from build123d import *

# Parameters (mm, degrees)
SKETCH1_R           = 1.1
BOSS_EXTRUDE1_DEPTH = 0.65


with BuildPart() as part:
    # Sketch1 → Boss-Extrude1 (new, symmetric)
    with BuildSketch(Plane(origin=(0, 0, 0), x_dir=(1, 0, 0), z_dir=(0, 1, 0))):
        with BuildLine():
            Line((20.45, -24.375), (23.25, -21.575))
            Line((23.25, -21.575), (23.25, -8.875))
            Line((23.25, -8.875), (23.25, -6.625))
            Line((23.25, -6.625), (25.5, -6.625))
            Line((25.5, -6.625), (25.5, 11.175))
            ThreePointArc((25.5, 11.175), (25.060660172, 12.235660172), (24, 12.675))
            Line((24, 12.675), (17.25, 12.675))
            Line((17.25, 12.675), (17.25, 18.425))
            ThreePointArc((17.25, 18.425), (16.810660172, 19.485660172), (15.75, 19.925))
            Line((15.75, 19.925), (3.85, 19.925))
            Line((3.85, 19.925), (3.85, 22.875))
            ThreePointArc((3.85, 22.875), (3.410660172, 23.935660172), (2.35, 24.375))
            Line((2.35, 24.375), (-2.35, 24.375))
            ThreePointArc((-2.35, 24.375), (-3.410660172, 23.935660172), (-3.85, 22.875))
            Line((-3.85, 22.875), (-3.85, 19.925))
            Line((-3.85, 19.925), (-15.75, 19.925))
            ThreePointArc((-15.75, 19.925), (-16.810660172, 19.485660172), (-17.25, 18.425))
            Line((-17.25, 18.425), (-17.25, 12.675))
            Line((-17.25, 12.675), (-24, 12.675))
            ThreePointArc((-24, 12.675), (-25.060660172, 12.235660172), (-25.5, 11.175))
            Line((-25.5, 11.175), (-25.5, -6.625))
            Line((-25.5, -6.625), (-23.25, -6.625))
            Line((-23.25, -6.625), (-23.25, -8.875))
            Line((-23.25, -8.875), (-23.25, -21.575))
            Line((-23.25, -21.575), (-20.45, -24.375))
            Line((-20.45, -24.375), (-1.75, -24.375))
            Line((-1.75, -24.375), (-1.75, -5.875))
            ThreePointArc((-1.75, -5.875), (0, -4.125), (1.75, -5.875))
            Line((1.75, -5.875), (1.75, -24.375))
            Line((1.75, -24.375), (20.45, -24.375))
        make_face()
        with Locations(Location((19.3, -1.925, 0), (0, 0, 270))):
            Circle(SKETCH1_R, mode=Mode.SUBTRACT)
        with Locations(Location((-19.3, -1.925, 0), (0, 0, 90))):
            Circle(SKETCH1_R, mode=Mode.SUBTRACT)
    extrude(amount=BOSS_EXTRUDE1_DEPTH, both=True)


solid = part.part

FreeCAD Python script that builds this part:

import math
import FreeCAD as App
import Part
import Sketcher

V = App.Vector

doc = App.newDocument("Part")
params = doc.addObject("Spreadsheet::Sheet", "Params")
for row, (alias, value) in enumerate([
    ("sketch1_diameter", "2.2 mm"),
    ("sketch1_radius", "1.5 mm"),
    ("sketch1_radius2", "1.75 mm"),
    ("sketch1_width", "11.9 mm"),
    ("sketch1_width2", "4.7 mm"),
    ("pad1_length", "1.3 mm"),
], start=1):
    params.set(f"A{row}", alias)
    params.set(f"B{row}", "=" + value)
    params.setAlias(f"B{row}", alias)

body = doc.addObject("PartDesign::Body", "Body")

# Sketch on XZ plane
sketch1 = body.newObject("Sketcher::SketchObject", "Sketch")
sketch1.AttachmentSupport = (doc.getObject("XZ_Plane"), [""])
sketch1.MapMode = "FlatFace"
sketch1.addGeometry(Part.LineSegment(V(20.4, 24.4, 0), V(23.2, 21.6, 0)), False)
sketch1.addGeometry(Part.LineSegment(V(23.2, 21.6, 0), V(23.2, 6.6, 0)), False)
sketch1.addGeometry(Part.LineSegment(V(23.2, 6.6, 0), V(25.5, 6.6, 0)), False)
sketch1.addGeometry(Part.LineSegment(V(25.5, 6.6, 0), V(25.5, -11.2, 0)), False)
sketch1.addGeometry(Part.ArcOfCircle(Part.Circle(V(24, -11.2, 0), V(0, 0, 1), 1.5), math.radians(-90), math.radians(0)), False)
sketch1.addGeometry(Part.LineSegment(V(24, -12.7, 0), V(17.2, -12.7, 0)), False)
sketch1.addGeometry(Part.LineSegment(V(17.2, -12.7, 0), V(17.2, -18.4, 0)), False)
sketch1.addGeometry(Part.ArcOfCircle(Part.Circle(V(15.8, -18.4, 0), V(0, 0, 1), 1.5), math.radians(-90), math.radians(0)), False)
sketch1.addGeometry(Part.LineSegment(V(15.8, -19.9, 0), V(3.9, -19.9, 0)), False)
sketch1.addGeometry(Part.LineSegment(V(3.9, -19.9, 0), V(3.9, -22.9, 0)), False)
sketch1.addGeometry(Part.ArcOfCircle(Part.Circle(V(2.4, -22.9, 0), V(0, 0, 1), 1.5), math.radians(-90), math.radians(0)), False)
sketch1.addGeometry(Part.LineSegment(V(2.4, -24.4, 0), V(-2.4, -24.4, 0)), False)
sketch1.addGeometry(Part.ArcOfCircle(Part.Circle(V(-2.4, -22.9, 0), V(0, 0, 1), 1.5), math.radians(180), math.radians(270)), False)
sketch1.addGeometry(Part.LineSegment(V(-3.9, -22.9, 0), V(-3.9, -19.9, 0)), False)
sketch1.addGeometry(Part.LineSegment(V(-3.9, -19.9, 0), V(-15.8, -19.9, 0)), False)
sketch1.addGeometry(Part.ArcOfCircle(Part.Circle(V(-15.8, -18.4, 0), V(0, 0, 1), 1.5), math.radians(180), math.radians(270)), False)
sketch1.addGeometry(Part.LineSegment(V(-17.2, -18.4, 0), V(-17.2, -12.7, 0)), False)
sketch1.addGeometry(Part.LineSegment(V(-17.2, -12.7, 0), V(-24, -12.7, 0)), False)
sketch1.addGeometry(Part.ArcOfCircle(Part.Circle(V(-24, -11.2, 0), V(0, 0, 1), 1.5), math.radians(180), math.radians(270)), False)
sketch1.addGeometry(Part.LineSegment(V(-25.5, -11.2, 0), V(-25.5, 6.6, 0)), False)
sketch1.addGeometry(Part.LineSegment(V(-25.5, 6.6, 0), V(-23.2, 6.6, 0)), False)
sketch1.addGeometry(Part.LineSegment(V(-23.2, 6.6, 0), V(-23.2, 21.6, 0)), False)
sketch1.addGeometry(Part.LineSegment(V(-23.2, 21.6, 0), V(-20.4, 24.4, 0)), False)
sketch1.addGeometry(Part.LineSegment(V(-20.4, 24.4, 0), V(-1.8, 24.4, 0)), False)
sketch1.addGeometry(Part.LineSegment(V(-1.8, 24.4, 0), V(-1.8, 5.9, 0)), False)
sketch1.addGeometry(Part.ArcOfCircle(Part.Circle(V(0, 5.9, 0), V(0, 0, 1), 1.8), math.radians(180), math.radians(360)), False)
sketch1.addGeometry(Part.LineSegment(V(1.8, 5.9, 0), V(1.8, 24.4, 0)), False)
sketch1.addGeometry(Part.LineSegment(V(1.8, 24.4, 0), V(20.4, 24.4, 0)), False)
sketch1.addGeometry(Part.Circle(V(-19.3, 1.9, 0), V(0, 0, 1), 1.1), False)
sketch1.addGeometry(Part.Circle(V(19.3, 1.9, 0), V(0, 0, 1), 1.1), False)
sketch1.addConstraint(Sketcher.Constraint("Coincident", 0, 2, 1, 1))
sketch1.addConstraint(Sketcher.Constraint("Coincident", 1, 2, 2, 1))
sketch1.addConstraint(Sketcher.Constraint("Coincident", 2, 2, 3, 1))
sketch1.addConstraint(Sketcher.Constraint("Tangent", 3, 2, 4, 2))
sketch1.addConstraint(Sketcher.Constraint("Tangent", 4, 1, 5, 1))
sketch1.addConstraint(Sketcher.Constraint("Coincident", 5, 2, 6, 1))
sketch1.addConstraint(Sketcher.Constraint("Tangent", 6, 2, 7, 2))
sketch1.addConstraint(Sketcher.Constraint("Tangent", 7, 1, 8, 1))
sketch1.addConstraint(Sketcher.Constraint("Coincident", 8, 2, 9, 1))
sketch1.addConstraint(Sketcher.Constraint("Tangent", 9, 2, 10, 2))
sketch1.addConstraint(Sketcher.Constraint("Tangent", 10, 1, 11, 1))
sketch1.addConstraint(Sketcher.Constraint("Tangent", 11, 2, 12, 2))
sketch1.addConstraint(Sketcher.Constraint("Tangent", 12, 1, 13, 1))
sketch1.addConstraint(Sketcher.Constraint("Coincident", 13, 2, 14, 1))
sketch1.addConstraint(Sketcher.Constraint("Tangent", 14, 2, 15, 2))
sketch1.addConstraint(Sketcher.Constraint("Tangent", 15, 1, 16, 1))
sketch1.addConstraint(Sketcher.Constraint("Coincident", 16, 2, 17, 1))
sketch1.addConstraint(Sketcher.Constraint("Tangent", 17, 2, 18, 2))
sketch1.addConstraint(Sketcher.Constraint("Tangent", 18, 1, 19, 1))
sketch1.addConstraint(Sketcher.Constraint("Coincident", 19, 2, 20, 1))
sketch1.addConstraint(Sketcher.Constraint("Coincident", 20, 2, 21, 1))
sketch1.addConstraint(Sketcher.Constraint("Coincident", 21, 2, 22, 1))
sketch1.addConstraint(Sketcher.Constraint("Coincident", 22, 2, 23, 1))
sketch1.addConstraint(Sketcher.Constraint("Coincident", 23, 2, 24, 1))
sketch1.addConstraint(Sketcher.Constraint("Tangent", 24, 2, 25, 1))
sketch1.addConstraint(Sketcher.Constraint("Tangent", 25, 2, 26, 1))
sketch1.addConstraint(Sketcher.Constraint("Coincident", 26, 2, 27, 1))
sketch1.addConstraint(Sketcher.Constraint("Coincident", 27, 2, 0, 1))
sketch1.addConstraint(Sketcher.Constraint("Vertical", 1))
sketch1.addConstraint(Sketcher.Constraint("Horizontal", 2))
sketch1.addConstraint(Sketcher.Constraint("Vertical", 3))
sketch1.addConstraint(Sketcher.Constraint("Horizontal", 5))
sketch1.addConstraint(Sketcher.Constraint("Vertical", 6))
sketch1.addConstraint(Sketcher.Constraint("Horizontal", 8))
sketch1.addConstraint(Sketcher.Constraint("Vertical", 9))
sketch1.addConstraint(Sketcher.Constraint("Horizontal", 11))
sketch1.addConstraint(Sketcher.Constraint("Vertical", 13))
sketch1.addConstraint(Sketcher.Constraint("Horizontal", 14))
sketch1.addConstraint(Sketcher.Constraint("Vertical", 16))
sketch1.addConstraint(Sketcher.Constraint("Horizontal", 17))
sketch1.addConstraint(Sketcher.Constraint("Vertical", 19))
sketch1.addConstraint(Sketcher.Constraint("Horizontal", 20))
sketch1.addConstraint(Sketcher.Constraint("Vertical", 21))
sketch1.addConstraint(Sketcher.Constraint("Horizontal", 23))
sketch1.addConstraint(Sketcher.Constraint("Vertical", 24))
sketch1.addConstraint(Sketcher.Constraint("Vertical", 26))
sketch1.addConstraint(Sketcher.Constraint("Horizontal", 27))
sketch1.addConstraint(Sketcher.Constraint("Equal", 4, 7))
sketch1.addConstraint(Sketcher.Constraint("Equal", 7, 10))
sketch1.addConstraint(Sketcher.Constraint("Equal", 10, 12))
sketch1.addConstraint(Sketcher.Constraint("Equal", 12, 15))
sketch1.addConstraint(Sketcher.Constraint("Equal", 15, 18))
sketch1.addConstraint(Sketcher.Constraint("Equal", 28, 29))
sketch1.addConstraint(Sketcher.Constraint("Symmetric", 7, 3, 15, 3, -2))
sketch1.addConstraint(Sketcher.Constraint("Symmetric", 4, 3, 18, 3, -2))
sketch1.addConstraint(Sketcher.Constraint("Symmetric", 28, 3, 29, 3, -2))
sketch1.addConstraint(Sketcher.Constraint("Symmetric", 1, 2, 20, 2, -2))
sketch1.addConstraint(Sketcher.Constraint("Symmetric", 23, 2, 26, 2, -2))
sketch1.addConstraint(Sketcher.Constraint("Perpendicular", 0, 22))
sketch1.addConstraint(Sketcher.Constraint("Horizontal", 0, 2, 21, 2))
sketch1.addConstraint(Sketcher.Constraint("Equal", 8, 14))
sketch1.addConstraint(Sketcher.Constraint("Equal", 23, 27))
sketch1.addConstraint(Sketcher.Constraint("Diameter", 28, 2.2))
sketch1.addConstraint(Sketcher.Constraint("Radius", 4, 1.5))
sketch1.addConstraint(Sketcher.Constraint("Radius", 25, 1.75))
sketch1.addConstraint(Sketcher.Constraint("DistanceX", 8, 2, 8, 1, 11.9))
sketch1.addConstraint(Sketcher.Constraint("DistanceX", 11, 2, 11, 1, 4.7))
sketch1.addConstraint(Sketcher.Constraint("DistanceX", 23, 1, 23, 2, 18.7))
sketch1.addConstraint(Sketcher.Constraint("DistanceY", 3, 2, 3, 1, 17.8))
sketch1.addConstraint(Sketcher.Constraint("DistanceY", 24, 2, 24, 1, 18.5))
sketch1.addConstraint(Sketcher.Constraint("DistanceX", -1, 1, 4, 3, 24.0))
sketch1.addConstraint(Sketcher.Constraint("DistanceY", 7, 3, 0, 2, 40.0))
sketch1.addConstraint(Sketcher.Constraint("DistanceX", 23, 2, 0, 2, 25.0))
sketch1.addConstraint(Sketcher.Constraint("DistanceY", 1, 2, 1, 1, 14.95))
sketch1.addConstraint(Sketcher.Constraint("DistanceY", 9, 2, 9, 1, 2.95))
sketch1.addConstraint(Sketcher.Constraint("DistanceX", 28, 3, -1, 1, 19.3))
sketch1.addConstraint(Sketcher.Constraint("DistanceY", 18, 3, 28, 3, 13.1))
sketch1.addConstraint(Sketcher.Constraint("DistanceY", 4, 3, -1, 1, 11.175))
sketch1.setExpression("Constraints[62]", "Params.sketch1_diameter")
sketch1.setExpression("Constraints[63]", "Params.sketch1_radius")
sketch1.setExpression("Constraints[64]", "Params.sketch1_radius2")
sketch1.setExpression("Constraints[65]", "Params.sketch1_width")
sketch1.setExpression("Constraints[66]", "Params.sketch1_width2")
pad1 = body.newObject("PartDesign::Pad", "Pad")
pad1.Profile = sketch1
pad1.setExpression("Length", "Params.pad1_length")
pad1.Midplane = True

doc.recompute()
